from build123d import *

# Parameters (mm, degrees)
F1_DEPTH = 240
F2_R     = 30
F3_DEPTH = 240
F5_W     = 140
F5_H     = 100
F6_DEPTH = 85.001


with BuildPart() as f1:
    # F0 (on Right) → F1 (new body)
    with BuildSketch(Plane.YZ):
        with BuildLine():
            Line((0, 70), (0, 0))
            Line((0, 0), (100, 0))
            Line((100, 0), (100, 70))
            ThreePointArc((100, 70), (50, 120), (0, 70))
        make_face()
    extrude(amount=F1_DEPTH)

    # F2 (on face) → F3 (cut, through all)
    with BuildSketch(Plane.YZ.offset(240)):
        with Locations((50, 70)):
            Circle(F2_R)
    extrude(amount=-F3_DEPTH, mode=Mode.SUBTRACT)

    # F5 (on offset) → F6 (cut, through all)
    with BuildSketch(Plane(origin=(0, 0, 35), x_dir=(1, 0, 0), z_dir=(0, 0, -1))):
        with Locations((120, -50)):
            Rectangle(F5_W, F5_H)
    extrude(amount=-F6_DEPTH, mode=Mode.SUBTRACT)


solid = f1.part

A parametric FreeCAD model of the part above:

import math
import FreeCAD as App
import Part
import Sketcher

doc = App.newDocument("Part")
body = doc.addObject("PartDesign::Body", "Body")

# Sketch on YZ plane
sketch1 = doc.addObject("Sketcher::SketchObject", "Sketch")
body.addObject(sketch1)
sketch1.AttachmentSupport = (doc.YZ_Plane, [""])
sketch1.MapMode = "FlatFace"
sketch1.addGeometry(Part.LineSegment(App.Vector(0, 70, 0), App.Vector(0, 0, 0)), False)
sketch1.addGeometry(Part.LineSegment(App.Vector(0, 0, 0), App.Vector(100, 0, 0)), False)
sketch1.addGeometry(Part.LineSegment(App.Vector(100, 0, 0), App.Vector(100, 70, 0)), False)
sketch1.addGeometry(Part.ArcOfCircle(Part.Circle(App.Vector(50, 70, 0), App.Vector(0, 0, 1), 50), math.radians(0), math.radians(180)), False)
sketch1.addConstraint(Sketcher.Constraint("Coincident", 0, 2, 1, 1))
sketch1.addConstraint(Sketcher.Constraint("Coincident", 1, 2, 2, 1))
sketch1.addConstraint(Sketcher.Constraint("Tangent", 2, 2, 3, 1))
sketch1.addConstraint(Sketcher.Constraint("Tangent", 3, 2, 0, 1))
sketch1.addConstraint(Sketcher.Constraint("Vertical", 0))
sketch1.addConstraint(Sketcher.Constraint("Horizontal", 1))
sketch1.addConstraint(Sketcher.Constraint("Vertical", 2))
sketch1.addConstraint(Sketcher.Constraint("Coincident", 0, 2, -1, 1))
sketch1.addConstraint(Sketcher.Constraint("Radius", 3, 50.0))
sketch1.addConstraint(Sketcher.Constraint("DistanceY", 0, 2, 0, 1, 70.0))
pad1 = doc.addObject("PartDesign::Pad", "Pad")
body.addObject(pad1)
pad1.Profile = sketch1
pad1.Length = 240

# Sketch on YZ plane
sketch2 = doc.addObject("Sketcher::SketchObject", "Sketch001")
body.addObject(sketch2)
sketch2.AttachmentSupport = (doc.YZ_Plane, [""])
sketch2.MapMode = "FlatFace"
sketch2.AttachmentOffset = App.Placement(App.Vector(0, 0, 240), App.Rotation())
sketch2.addGeometry(Part.Circle(App.Vector(50, 70, 0), App.Vector(0, 0, 1), 30), False)
sketch2.addConstraint(Sketcher.Constraint("Diameter", 0, 60.0))
sketch2.addConstraint(Sketcher.Constraint("DistanceX", -1, 1, 0, 3, 50.0))
sketch2.addConstraint(Sketcher.Constraint("DistanceY", -1, 1, 0, 3, 70.0))
pocket1 = doc.addObject("PartDesign::Pocket", "Pocket")
body.addObject(pocket1)
pocket1.Profile = sketch2
pocket1.Type = "ThroughAll"

# Sketch on XY plane
sketch3 = doc.addObject("Sketcher::SketchObject", "Sketch002")
body.addObject(sketch3)
sketch3.AttachmentSupport = (doc.XY_Plane, [""])
sketch3.MapMode = "FlatFace"
sketch3.AttachmentOffset = App.Placement(App.Vector(0, 0, 35), App.Rotation())
sketch3.addGeometry(Part.LineSegment(App.Vector(50, 0, 0), App.Vector(50, 100, 0)), False)
sketch3.addGeometry(Part.LineSegment(App.Vector(50, 100, 0), App.Vector(190, 100, 0)), False)
sketch3.addGeometry(Part.LineSegment(App.Vector(190, 100, 0), App.Vector(190, 0, 0)), False)
sketch3.addGeometry(Part.LineSegment(App.Vector(190, 0, 0), App.Vector(50, 0, 0)), False)
sketch3.addConstraint(Sketcher.Constraint("Coincident", 0, 2, 1, 1))
sketch3.addConstraint(Sketcher.Constraint("Coincident", 1, 2, 2, 1))
sketch3.addConstraint(Sketcher.Constraint("Coincident", 2, 2, 3, 1))
sketch3.addConstraint(Sketcher.Constraint("Coincident", 3, 2, 0, 1))
sketch3.addConstraint(Sketcher.Constraint("Vertical", 0))
sketch3.addConstraint(Sketcher.Constraint("Horizontal", 1))
sketch3.addConstraint(Sketcher.Constraint("Vertical", 2))
sketch3.addConstraint(Sketcher.Constraint("Horizontal", 3))
sketch3.addConstraint(Sketcher.Constraint("PointOnObject", 2, 2, -1))
sketch3.addConstraint(Sketcher.Constraint("DistanceX", 1, 1, 1, 2, 140.0))
sketch3.addConstraint(Sketcher.Constraint("DistanceY", 0, 1, 0, 2, 100.0))
sketch3.addConstraint(Sketcher.Constraint("DistanceX", -1, 1, 0, 2, 50.0))
pocket2 = doc.addObject("PartDesign::Pocket", "Pocket001")
body.addObject(pocket2)
pocket2.Profile = sketch3
pocket2.Type = "ThroughAll"
pocket2.Reversed = True

doc.recompute()
